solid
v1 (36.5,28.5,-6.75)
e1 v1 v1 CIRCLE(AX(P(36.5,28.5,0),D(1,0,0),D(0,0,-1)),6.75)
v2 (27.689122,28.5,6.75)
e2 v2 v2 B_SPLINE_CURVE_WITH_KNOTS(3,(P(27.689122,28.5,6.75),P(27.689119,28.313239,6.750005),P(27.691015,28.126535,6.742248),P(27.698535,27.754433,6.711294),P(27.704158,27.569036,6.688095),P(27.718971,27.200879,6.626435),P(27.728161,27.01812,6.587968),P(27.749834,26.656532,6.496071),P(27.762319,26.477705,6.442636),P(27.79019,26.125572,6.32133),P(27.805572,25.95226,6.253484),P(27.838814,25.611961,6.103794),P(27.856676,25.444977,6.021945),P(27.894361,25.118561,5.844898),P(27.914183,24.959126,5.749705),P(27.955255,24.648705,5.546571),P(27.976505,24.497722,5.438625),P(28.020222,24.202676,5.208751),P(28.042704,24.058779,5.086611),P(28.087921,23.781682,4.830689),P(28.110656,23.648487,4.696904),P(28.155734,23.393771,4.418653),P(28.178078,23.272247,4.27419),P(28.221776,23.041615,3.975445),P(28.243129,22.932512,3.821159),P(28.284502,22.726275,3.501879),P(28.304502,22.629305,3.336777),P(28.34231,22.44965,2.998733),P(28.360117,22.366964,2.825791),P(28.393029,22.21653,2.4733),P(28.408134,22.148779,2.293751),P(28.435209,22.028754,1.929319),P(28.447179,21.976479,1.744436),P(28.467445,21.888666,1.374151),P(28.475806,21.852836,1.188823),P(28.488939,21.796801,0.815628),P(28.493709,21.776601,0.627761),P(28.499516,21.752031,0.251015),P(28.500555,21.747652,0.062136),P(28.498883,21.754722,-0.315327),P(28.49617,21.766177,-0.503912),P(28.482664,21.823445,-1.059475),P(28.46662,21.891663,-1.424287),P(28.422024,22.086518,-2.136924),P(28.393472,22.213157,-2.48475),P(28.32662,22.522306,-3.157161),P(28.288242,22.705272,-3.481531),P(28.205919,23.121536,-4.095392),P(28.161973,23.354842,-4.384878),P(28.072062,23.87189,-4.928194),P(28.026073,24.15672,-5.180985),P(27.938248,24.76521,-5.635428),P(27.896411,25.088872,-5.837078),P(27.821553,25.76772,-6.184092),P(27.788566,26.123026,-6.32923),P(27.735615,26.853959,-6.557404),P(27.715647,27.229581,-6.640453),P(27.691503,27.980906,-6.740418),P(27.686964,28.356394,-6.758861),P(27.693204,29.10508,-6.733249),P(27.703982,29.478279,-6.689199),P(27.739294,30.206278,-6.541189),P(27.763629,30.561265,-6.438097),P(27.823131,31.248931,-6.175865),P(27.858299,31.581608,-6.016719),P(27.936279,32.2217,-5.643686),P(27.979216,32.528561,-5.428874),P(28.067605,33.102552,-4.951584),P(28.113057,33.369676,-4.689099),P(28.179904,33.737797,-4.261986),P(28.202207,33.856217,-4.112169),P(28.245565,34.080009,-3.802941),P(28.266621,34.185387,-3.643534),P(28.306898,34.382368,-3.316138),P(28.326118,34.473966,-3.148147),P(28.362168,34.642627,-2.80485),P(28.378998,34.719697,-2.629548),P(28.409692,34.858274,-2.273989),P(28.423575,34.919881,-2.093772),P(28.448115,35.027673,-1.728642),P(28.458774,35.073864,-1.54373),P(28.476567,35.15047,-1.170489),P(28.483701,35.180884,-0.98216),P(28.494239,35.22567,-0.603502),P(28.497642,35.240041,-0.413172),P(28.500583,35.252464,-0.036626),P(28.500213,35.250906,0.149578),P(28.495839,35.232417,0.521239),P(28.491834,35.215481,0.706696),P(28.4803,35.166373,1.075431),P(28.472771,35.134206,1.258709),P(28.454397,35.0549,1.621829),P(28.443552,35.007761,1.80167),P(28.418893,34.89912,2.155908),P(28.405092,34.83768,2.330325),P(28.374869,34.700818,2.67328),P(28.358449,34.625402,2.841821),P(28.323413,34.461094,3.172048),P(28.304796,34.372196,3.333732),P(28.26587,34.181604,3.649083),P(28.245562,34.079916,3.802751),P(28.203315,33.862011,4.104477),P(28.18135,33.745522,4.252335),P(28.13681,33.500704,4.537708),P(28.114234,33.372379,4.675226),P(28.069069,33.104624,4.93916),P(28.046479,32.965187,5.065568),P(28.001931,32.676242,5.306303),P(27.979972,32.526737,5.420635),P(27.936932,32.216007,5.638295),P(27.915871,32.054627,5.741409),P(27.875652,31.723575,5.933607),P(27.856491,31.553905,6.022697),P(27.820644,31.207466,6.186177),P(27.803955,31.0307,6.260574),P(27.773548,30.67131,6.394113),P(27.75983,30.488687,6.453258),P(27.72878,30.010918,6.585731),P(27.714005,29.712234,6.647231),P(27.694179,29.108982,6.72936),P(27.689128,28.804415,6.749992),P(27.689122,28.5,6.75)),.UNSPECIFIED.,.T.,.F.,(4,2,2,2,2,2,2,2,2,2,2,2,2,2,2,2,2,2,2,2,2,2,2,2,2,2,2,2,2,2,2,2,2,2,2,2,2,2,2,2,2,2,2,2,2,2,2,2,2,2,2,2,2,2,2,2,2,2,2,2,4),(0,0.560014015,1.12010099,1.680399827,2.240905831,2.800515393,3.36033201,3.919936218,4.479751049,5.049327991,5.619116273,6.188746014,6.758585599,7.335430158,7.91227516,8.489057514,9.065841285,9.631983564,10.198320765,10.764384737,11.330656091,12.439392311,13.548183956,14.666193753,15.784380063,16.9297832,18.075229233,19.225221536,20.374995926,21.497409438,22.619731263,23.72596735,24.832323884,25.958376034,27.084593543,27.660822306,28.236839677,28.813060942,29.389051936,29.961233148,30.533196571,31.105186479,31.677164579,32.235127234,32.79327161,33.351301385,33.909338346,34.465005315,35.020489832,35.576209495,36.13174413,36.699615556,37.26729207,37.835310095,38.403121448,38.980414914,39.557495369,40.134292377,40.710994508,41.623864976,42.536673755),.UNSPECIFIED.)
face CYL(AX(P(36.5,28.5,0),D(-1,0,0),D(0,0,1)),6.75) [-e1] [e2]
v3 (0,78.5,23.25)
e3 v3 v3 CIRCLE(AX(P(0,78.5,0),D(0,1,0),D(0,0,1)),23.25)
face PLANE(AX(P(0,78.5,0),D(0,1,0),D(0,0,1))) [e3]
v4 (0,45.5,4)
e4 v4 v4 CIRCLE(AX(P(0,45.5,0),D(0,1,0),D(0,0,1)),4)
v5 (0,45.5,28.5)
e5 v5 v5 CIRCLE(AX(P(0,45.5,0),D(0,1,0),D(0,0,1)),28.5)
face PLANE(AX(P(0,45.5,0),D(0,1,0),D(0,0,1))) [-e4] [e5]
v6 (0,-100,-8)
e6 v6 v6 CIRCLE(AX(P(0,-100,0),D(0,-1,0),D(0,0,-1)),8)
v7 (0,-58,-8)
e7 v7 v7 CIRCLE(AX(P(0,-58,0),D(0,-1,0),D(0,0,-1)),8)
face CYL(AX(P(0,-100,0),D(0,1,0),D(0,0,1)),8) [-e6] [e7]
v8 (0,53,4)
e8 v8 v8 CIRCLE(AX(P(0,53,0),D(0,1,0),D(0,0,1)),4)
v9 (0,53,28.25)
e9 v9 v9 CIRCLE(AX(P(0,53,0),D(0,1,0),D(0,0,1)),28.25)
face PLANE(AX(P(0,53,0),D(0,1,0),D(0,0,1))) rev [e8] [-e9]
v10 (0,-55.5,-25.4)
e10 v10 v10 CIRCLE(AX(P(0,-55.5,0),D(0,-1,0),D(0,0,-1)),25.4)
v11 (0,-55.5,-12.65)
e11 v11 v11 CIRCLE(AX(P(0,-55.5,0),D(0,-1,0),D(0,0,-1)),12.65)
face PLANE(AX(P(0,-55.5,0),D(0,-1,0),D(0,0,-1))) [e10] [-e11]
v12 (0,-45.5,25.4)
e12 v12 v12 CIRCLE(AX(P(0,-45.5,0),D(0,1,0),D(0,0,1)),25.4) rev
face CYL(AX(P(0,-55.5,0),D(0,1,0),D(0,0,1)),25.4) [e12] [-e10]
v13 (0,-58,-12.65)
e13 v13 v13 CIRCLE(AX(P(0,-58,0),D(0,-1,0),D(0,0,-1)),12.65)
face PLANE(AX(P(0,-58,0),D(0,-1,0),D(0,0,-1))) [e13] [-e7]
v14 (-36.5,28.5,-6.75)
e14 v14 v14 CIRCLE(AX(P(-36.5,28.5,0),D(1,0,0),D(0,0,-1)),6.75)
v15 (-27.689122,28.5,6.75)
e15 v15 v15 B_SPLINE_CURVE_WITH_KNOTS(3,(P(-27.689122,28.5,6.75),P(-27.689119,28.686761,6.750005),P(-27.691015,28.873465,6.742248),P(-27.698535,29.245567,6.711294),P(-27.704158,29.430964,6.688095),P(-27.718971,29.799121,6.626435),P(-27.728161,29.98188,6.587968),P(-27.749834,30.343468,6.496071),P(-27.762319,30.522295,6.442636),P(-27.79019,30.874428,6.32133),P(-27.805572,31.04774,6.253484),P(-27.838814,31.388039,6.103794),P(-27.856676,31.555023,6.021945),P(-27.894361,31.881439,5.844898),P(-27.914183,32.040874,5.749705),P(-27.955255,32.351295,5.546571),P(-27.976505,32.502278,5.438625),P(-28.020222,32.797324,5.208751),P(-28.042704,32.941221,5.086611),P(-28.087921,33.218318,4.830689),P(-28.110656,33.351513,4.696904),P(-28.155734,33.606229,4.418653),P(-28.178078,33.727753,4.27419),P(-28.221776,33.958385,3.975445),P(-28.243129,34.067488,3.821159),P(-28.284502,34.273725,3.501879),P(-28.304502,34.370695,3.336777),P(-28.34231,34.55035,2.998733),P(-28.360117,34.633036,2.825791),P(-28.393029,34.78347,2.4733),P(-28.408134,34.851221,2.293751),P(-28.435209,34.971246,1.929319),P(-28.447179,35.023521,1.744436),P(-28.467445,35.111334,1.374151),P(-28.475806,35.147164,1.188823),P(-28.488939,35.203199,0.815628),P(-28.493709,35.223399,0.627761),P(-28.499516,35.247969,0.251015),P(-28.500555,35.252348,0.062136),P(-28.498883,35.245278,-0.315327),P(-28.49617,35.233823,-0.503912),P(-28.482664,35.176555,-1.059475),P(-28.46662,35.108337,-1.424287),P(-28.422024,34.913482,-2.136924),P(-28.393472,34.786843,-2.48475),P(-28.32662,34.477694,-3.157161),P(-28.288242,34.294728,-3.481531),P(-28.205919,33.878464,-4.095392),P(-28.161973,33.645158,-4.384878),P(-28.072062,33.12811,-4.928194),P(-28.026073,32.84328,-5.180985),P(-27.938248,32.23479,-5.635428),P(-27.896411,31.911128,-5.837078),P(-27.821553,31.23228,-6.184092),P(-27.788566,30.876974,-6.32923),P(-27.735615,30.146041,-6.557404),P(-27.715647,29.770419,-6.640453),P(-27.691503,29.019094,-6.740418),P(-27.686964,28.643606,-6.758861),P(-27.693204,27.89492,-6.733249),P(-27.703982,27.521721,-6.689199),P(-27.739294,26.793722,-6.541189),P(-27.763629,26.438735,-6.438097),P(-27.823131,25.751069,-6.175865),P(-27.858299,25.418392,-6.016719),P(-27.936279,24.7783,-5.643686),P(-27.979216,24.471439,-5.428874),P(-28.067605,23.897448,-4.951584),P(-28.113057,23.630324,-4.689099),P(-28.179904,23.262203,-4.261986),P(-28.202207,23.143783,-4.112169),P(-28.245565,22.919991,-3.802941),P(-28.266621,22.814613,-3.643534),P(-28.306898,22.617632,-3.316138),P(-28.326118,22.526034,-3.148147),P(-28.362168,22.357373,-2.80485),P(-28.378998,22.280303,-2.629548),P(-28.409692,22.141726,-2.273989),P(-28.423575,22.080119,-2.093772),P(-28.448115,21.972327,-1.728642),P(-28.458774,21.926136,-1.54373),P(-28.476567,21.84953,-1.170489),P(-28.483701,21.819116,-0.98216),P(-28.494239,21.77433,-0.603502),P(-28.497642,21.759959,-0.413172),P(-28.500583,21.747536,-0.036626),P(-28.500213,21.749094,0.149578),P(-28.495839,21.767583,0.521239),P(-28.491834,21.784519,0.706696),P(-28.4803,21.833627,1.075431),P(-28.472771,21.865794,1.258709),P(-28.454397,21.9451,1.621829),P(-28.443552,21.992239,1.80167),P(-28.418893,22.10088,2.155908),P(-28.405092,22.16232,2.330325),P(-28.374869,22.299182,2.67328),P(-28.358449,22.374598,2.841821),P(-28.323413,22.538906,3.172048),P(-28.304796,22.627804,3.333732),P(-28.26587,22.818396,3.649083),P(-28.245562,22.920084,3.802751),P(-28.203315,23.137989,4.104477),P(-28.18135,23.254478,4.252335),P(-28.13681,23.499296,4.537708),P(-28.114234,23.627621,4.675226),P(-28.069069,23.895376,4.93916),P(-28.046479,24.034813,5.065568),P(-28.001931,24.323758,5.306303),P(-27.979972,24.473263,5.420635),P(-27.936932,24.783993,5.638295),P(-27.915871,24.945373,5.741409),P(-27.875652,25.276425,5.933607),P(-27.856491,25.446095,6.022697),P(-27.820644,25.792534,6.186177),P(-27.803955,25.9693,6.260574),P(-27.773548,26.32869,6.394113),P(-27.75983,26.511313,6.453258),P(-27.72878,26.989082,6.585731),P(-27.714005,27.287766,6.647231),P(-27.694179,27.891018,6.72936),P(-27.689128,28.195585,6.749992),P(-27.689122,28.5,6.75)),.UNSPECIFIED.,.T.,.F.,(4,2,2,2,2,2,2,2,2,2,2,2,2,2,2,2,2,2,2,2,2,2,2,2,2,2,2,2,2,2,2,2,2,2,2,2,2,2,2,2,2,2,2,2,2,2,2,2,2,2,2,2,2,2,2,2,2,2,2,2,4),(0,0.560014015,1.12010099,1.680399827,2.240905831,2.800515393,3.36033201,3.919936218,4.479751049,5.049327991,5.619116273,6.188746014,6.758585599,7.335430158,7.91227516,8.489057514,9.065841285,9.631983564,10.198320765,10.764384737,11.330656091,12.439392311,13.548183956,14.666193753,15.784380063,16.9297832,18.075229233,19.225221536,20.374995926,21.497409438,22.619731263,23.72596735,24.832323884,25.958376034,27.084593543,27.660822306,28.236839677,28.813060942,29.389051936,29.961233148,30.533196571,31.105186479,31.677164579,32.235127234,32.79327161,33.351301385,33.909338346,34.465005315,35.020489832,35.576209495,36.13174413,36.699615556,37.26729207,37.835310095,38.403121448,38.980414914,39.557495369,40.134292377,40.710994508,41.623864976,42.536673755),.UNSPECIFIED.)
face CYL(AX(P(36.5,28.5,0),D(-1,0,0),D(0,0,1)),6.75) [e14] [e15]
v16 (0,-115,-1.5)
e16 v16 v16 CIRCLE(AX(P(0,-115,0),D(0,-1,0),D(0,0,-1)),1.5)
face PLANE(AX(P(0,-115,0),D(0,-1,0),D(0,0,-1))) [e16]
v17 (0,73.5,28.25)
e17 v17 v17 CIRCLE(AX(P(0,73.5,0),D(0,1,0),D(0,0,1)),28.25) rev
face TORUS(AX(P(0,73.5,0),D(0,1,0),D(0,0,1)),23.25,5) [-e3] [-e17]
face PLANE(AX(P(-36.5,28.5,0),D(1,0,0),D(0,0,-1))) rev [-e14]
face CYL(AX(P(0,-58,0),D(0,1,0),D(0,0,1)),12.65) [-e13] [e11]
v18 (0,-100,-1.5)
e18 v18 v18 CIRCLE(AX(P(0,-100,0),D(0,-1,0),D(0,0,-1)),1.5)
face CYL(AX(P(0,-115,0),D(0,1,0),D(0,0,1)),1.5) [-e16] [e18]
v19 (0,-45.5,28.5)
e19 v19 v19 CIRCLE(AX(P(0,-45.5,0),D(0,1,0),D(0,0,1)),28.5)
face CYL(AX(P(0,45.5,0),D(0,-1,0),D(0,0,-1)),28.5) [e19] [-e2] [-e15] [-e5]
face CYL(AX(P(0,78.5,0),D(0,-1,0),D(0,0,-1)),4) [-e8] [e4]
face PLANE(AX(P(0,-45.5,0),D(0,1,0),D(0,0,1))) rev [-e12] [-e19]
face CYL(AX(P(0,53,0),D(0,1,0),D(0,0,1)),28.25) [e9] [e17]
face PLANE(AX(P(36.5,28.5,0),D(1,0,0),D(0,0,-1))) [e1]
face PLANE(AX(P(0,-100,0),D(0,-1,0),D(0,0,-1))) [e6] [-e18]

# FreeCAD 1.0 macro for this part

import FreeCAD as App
import Part
import Sketcher

V = App.Vector


def edges_at(feature, points):
    """Names of the edges that pass closest to the given points."""
    edges = feature.Shape.Edges
    near = lambda p: min(range(len(edges)), key=lambda i: edges[i].distToShape(Part.Vertex(*p))[0])
    return sorted({f"Edge{near(p) + 1}" for p in points})

doc = App.newDocument("Part")
body = doc.addObject("PartDesign::Body", "Body")

# Sketch on XZ plane
sketch1 = body.newObject("Sketcher::SketchObject", "Sketch")
sketch1.AttachmentSupport = (doc.getObject("XZ_Plane"), [""])
sketch1.MapMode = "FlatFace"
sketch1.addGeometry(Part.Circle(V(0, 0, 0), V(0, 0, 1), 28), False)
sketch1.addConstraint(Sketcher.Constraint("Coincident", 0, 3, -1, 1))
sketch1.addConstraint(Sketcher.Constraint("Diameter", 0, 57.0))
pad1 = body.newObject("PartDesign::Pad", "Pad")
pad1.Profile = sketch1
pad1.Length = 91
pad1.Midplane = True

# Sketch on XZ plane
sketch2 = body.newObject("Sketcher::SketchObject", "Sketch001")
sketch2.AttachmentSupport = (doc.getObject("XZ_Plane"), [""])
sketch2.MapMode = "FlatFace"
sketch2.AttachmentOffset = App.Placement(V(0, 0, 45.5), App.Rotation())
sketch2.addGeometry(Part.Circle(V(0, 0, 0), V(0, 0, 1), 25), False)
sketch2.addConstraint(Sketcher.Constraint("Coincident", 0, 3, -1, 1))
sketch2.addConstraint(Sketcher.Constraint("Diameter", 0, 50.8))
pad2 = body.newObject("PartDesign::Pad", "Pad001")
pad2.Profile = sketch2
pad2.Length = 10

# Sketch on XZ plane
sketch3 = body.newObject("Sketcher::SketchObject", "Sketch002")
sketch3.AttachmentSupport = (doc.getObject("XZ_Plane"), [""])
sketch3.MapMode = "FlatFace"
sketch3.AttachmentOffset = App.Placement(V(0, 0, 55.5), App.Rotation())
sketch3.addGeometry(Part.Circle(V(0, 0, 0), V(0, 0, 1), 13), False)
sketch3.addConstraint(Sketcher.Constraint("Coincident", 0, 3, -1, 1))
sketch3.addConstraint(Sketcher.Constraint("Diameter", 0, 25.3))
pad3 = body.newObject("PartDesign::Pad", "Pad002")
pad3.Profile = sketch3
pad3.Length = 2.5

# Sketch on XZ plane
sketch4 = body.newObject("Sketcher::SketchObject", "Sketch003")
sketch4.AttachmentSupport = (doc.getObject("XZ_Plane"), [""])
sketch4.MapMode = "FlatFace"
sketch4.AttachmentOffset = App.Placement(V(0, 0, 58), App.Rotation())
sketch4.addGeometry(Part.Circle(V(0, 0, 0), V(0, 0, 1), 8), False)
sketch4.addConstraint(Sketcher.Constraint("Coincident", 0, 3, -1, 1))
sketch4.addConstraint(Sketcher.Constraint("Diameter", 0, 16.0))
pad4 = body.newObject("PartDesign::Pad", "Pad003")
pad4.Profile = sketch4
pad4.Length = 42

# Sketch on XZ plane
sketch5 = body.newObject("Sketcher::SketchObject", "Sketch004")
sketch5.AttachmentSupport = (doc.getObject("XZ_Plane"), [""])
sketch5.MapMode = "FlatFace"
sketch5.AttachmentOffset = App.Placement(V(0, 0, -45.5), App.Rotation())
sketch5.addGeometry(Part.Circle(V(0, 0, 0), V(0, 0, 1), 4), False)
sketch5.addConstraint(Sketcher.Constraint("Coincident", 0, 3, -1, 1))
sketch5.addConstraint(Sketcher.Constraint("Diameter", 0, 8.0))
pad5 = body.newObject("PartDesign::Pad", "Pad004")
pad5.Profile = sketch5
pad5.Length = 33
pad5.Reversed = True

# Sketch on XZ plane
sketch6 = body.newObject("Sketcher::SketchObject", "Sketch005")
sketch6.AttachmentSupport = (doc.getObject("XZ_Plane"), [""])
sketch6.MapMode = "FlatFace"
sketch6.AttachmentOffset = App.Placement(V(0, 0, -78.5), App.Rotation())
sketch6.addGeometry(Part.Circle(V(0, 0, 0), V(0, 0, 1), 28), False)
sketch6.addConstraint(Sketcher.Constraint("Coincident", 0, 3, -1, 1))
sketch6.addConstraint(Sketcher.Constraint("Diameter", 0, 56.5))
pad6 = body.newObject("PartDesign::Pad", "Pad005")
pad6.Profile = sketch6
pad6.Length = 25.5
doc.recompute()

fillet = body.newObject("PartDesign::Fillet", "Fillet")
fillet.Base = (pad6, edges_at(pad6, [(-28.25, 78.5, 0)]))
fillet.Radius = 5

# Sketch on XZ plane
sketch7 = body.newObject("Sketcher::SketchObject", "Sketch006")
sketch7.AttachmentSupport = (doc.getObject("XZ_Plane"), [""])
sketch7.MapMode = "FlatFace"
sketch7.AttachmentOffset = App.Placement(V(0, 0, 100), App.Rotation())
sketch7.addGeometry(Part.Circle(V(0, 0, 0), V(0, 0, 1), 1.5), False)
sketch7.addConstraint(Sketcher.Constraint("Coincident", 0, 3, -1, 1))
sketch7.addConstraint(Sketcher.Constraint("Diameter", 0, 3.0))
pad7 = body.newObject("PartDesign::Pad", "Pad006")
pad7.Profile = sketch7
pad7.Length = 15

# Sketch on YZ plane
sketch8 = body.newObject("Sketcher::SketchObject", "Sketch007")
sketch8.AttachmentSupport = (doc.getObject("YZ_Plane"), [""])
sketch8.MapMode = "FlatFace"
sketch8.addGeometry(Part.Circle(V(28, 0, 0), V(0, 0, 1), 7), False)
sketch8.addConstraint(Sketcher.Constraint("PointOnObject", 0, 3, -1))
sketch8.addConstraint(Sketcher.Constraint("Diameter", 0, 13.5))
sketch8.addConstraint(Sketcher.Constraint("DistanceX", -1, 1, 0, 3, 28.5))
pad8 = body.newObject("PartDesign::Pad", "Pad007")
pad8.Profile = sketch8
pad8.Length = 73
pad8.Midplane = True

doc.recompute()
